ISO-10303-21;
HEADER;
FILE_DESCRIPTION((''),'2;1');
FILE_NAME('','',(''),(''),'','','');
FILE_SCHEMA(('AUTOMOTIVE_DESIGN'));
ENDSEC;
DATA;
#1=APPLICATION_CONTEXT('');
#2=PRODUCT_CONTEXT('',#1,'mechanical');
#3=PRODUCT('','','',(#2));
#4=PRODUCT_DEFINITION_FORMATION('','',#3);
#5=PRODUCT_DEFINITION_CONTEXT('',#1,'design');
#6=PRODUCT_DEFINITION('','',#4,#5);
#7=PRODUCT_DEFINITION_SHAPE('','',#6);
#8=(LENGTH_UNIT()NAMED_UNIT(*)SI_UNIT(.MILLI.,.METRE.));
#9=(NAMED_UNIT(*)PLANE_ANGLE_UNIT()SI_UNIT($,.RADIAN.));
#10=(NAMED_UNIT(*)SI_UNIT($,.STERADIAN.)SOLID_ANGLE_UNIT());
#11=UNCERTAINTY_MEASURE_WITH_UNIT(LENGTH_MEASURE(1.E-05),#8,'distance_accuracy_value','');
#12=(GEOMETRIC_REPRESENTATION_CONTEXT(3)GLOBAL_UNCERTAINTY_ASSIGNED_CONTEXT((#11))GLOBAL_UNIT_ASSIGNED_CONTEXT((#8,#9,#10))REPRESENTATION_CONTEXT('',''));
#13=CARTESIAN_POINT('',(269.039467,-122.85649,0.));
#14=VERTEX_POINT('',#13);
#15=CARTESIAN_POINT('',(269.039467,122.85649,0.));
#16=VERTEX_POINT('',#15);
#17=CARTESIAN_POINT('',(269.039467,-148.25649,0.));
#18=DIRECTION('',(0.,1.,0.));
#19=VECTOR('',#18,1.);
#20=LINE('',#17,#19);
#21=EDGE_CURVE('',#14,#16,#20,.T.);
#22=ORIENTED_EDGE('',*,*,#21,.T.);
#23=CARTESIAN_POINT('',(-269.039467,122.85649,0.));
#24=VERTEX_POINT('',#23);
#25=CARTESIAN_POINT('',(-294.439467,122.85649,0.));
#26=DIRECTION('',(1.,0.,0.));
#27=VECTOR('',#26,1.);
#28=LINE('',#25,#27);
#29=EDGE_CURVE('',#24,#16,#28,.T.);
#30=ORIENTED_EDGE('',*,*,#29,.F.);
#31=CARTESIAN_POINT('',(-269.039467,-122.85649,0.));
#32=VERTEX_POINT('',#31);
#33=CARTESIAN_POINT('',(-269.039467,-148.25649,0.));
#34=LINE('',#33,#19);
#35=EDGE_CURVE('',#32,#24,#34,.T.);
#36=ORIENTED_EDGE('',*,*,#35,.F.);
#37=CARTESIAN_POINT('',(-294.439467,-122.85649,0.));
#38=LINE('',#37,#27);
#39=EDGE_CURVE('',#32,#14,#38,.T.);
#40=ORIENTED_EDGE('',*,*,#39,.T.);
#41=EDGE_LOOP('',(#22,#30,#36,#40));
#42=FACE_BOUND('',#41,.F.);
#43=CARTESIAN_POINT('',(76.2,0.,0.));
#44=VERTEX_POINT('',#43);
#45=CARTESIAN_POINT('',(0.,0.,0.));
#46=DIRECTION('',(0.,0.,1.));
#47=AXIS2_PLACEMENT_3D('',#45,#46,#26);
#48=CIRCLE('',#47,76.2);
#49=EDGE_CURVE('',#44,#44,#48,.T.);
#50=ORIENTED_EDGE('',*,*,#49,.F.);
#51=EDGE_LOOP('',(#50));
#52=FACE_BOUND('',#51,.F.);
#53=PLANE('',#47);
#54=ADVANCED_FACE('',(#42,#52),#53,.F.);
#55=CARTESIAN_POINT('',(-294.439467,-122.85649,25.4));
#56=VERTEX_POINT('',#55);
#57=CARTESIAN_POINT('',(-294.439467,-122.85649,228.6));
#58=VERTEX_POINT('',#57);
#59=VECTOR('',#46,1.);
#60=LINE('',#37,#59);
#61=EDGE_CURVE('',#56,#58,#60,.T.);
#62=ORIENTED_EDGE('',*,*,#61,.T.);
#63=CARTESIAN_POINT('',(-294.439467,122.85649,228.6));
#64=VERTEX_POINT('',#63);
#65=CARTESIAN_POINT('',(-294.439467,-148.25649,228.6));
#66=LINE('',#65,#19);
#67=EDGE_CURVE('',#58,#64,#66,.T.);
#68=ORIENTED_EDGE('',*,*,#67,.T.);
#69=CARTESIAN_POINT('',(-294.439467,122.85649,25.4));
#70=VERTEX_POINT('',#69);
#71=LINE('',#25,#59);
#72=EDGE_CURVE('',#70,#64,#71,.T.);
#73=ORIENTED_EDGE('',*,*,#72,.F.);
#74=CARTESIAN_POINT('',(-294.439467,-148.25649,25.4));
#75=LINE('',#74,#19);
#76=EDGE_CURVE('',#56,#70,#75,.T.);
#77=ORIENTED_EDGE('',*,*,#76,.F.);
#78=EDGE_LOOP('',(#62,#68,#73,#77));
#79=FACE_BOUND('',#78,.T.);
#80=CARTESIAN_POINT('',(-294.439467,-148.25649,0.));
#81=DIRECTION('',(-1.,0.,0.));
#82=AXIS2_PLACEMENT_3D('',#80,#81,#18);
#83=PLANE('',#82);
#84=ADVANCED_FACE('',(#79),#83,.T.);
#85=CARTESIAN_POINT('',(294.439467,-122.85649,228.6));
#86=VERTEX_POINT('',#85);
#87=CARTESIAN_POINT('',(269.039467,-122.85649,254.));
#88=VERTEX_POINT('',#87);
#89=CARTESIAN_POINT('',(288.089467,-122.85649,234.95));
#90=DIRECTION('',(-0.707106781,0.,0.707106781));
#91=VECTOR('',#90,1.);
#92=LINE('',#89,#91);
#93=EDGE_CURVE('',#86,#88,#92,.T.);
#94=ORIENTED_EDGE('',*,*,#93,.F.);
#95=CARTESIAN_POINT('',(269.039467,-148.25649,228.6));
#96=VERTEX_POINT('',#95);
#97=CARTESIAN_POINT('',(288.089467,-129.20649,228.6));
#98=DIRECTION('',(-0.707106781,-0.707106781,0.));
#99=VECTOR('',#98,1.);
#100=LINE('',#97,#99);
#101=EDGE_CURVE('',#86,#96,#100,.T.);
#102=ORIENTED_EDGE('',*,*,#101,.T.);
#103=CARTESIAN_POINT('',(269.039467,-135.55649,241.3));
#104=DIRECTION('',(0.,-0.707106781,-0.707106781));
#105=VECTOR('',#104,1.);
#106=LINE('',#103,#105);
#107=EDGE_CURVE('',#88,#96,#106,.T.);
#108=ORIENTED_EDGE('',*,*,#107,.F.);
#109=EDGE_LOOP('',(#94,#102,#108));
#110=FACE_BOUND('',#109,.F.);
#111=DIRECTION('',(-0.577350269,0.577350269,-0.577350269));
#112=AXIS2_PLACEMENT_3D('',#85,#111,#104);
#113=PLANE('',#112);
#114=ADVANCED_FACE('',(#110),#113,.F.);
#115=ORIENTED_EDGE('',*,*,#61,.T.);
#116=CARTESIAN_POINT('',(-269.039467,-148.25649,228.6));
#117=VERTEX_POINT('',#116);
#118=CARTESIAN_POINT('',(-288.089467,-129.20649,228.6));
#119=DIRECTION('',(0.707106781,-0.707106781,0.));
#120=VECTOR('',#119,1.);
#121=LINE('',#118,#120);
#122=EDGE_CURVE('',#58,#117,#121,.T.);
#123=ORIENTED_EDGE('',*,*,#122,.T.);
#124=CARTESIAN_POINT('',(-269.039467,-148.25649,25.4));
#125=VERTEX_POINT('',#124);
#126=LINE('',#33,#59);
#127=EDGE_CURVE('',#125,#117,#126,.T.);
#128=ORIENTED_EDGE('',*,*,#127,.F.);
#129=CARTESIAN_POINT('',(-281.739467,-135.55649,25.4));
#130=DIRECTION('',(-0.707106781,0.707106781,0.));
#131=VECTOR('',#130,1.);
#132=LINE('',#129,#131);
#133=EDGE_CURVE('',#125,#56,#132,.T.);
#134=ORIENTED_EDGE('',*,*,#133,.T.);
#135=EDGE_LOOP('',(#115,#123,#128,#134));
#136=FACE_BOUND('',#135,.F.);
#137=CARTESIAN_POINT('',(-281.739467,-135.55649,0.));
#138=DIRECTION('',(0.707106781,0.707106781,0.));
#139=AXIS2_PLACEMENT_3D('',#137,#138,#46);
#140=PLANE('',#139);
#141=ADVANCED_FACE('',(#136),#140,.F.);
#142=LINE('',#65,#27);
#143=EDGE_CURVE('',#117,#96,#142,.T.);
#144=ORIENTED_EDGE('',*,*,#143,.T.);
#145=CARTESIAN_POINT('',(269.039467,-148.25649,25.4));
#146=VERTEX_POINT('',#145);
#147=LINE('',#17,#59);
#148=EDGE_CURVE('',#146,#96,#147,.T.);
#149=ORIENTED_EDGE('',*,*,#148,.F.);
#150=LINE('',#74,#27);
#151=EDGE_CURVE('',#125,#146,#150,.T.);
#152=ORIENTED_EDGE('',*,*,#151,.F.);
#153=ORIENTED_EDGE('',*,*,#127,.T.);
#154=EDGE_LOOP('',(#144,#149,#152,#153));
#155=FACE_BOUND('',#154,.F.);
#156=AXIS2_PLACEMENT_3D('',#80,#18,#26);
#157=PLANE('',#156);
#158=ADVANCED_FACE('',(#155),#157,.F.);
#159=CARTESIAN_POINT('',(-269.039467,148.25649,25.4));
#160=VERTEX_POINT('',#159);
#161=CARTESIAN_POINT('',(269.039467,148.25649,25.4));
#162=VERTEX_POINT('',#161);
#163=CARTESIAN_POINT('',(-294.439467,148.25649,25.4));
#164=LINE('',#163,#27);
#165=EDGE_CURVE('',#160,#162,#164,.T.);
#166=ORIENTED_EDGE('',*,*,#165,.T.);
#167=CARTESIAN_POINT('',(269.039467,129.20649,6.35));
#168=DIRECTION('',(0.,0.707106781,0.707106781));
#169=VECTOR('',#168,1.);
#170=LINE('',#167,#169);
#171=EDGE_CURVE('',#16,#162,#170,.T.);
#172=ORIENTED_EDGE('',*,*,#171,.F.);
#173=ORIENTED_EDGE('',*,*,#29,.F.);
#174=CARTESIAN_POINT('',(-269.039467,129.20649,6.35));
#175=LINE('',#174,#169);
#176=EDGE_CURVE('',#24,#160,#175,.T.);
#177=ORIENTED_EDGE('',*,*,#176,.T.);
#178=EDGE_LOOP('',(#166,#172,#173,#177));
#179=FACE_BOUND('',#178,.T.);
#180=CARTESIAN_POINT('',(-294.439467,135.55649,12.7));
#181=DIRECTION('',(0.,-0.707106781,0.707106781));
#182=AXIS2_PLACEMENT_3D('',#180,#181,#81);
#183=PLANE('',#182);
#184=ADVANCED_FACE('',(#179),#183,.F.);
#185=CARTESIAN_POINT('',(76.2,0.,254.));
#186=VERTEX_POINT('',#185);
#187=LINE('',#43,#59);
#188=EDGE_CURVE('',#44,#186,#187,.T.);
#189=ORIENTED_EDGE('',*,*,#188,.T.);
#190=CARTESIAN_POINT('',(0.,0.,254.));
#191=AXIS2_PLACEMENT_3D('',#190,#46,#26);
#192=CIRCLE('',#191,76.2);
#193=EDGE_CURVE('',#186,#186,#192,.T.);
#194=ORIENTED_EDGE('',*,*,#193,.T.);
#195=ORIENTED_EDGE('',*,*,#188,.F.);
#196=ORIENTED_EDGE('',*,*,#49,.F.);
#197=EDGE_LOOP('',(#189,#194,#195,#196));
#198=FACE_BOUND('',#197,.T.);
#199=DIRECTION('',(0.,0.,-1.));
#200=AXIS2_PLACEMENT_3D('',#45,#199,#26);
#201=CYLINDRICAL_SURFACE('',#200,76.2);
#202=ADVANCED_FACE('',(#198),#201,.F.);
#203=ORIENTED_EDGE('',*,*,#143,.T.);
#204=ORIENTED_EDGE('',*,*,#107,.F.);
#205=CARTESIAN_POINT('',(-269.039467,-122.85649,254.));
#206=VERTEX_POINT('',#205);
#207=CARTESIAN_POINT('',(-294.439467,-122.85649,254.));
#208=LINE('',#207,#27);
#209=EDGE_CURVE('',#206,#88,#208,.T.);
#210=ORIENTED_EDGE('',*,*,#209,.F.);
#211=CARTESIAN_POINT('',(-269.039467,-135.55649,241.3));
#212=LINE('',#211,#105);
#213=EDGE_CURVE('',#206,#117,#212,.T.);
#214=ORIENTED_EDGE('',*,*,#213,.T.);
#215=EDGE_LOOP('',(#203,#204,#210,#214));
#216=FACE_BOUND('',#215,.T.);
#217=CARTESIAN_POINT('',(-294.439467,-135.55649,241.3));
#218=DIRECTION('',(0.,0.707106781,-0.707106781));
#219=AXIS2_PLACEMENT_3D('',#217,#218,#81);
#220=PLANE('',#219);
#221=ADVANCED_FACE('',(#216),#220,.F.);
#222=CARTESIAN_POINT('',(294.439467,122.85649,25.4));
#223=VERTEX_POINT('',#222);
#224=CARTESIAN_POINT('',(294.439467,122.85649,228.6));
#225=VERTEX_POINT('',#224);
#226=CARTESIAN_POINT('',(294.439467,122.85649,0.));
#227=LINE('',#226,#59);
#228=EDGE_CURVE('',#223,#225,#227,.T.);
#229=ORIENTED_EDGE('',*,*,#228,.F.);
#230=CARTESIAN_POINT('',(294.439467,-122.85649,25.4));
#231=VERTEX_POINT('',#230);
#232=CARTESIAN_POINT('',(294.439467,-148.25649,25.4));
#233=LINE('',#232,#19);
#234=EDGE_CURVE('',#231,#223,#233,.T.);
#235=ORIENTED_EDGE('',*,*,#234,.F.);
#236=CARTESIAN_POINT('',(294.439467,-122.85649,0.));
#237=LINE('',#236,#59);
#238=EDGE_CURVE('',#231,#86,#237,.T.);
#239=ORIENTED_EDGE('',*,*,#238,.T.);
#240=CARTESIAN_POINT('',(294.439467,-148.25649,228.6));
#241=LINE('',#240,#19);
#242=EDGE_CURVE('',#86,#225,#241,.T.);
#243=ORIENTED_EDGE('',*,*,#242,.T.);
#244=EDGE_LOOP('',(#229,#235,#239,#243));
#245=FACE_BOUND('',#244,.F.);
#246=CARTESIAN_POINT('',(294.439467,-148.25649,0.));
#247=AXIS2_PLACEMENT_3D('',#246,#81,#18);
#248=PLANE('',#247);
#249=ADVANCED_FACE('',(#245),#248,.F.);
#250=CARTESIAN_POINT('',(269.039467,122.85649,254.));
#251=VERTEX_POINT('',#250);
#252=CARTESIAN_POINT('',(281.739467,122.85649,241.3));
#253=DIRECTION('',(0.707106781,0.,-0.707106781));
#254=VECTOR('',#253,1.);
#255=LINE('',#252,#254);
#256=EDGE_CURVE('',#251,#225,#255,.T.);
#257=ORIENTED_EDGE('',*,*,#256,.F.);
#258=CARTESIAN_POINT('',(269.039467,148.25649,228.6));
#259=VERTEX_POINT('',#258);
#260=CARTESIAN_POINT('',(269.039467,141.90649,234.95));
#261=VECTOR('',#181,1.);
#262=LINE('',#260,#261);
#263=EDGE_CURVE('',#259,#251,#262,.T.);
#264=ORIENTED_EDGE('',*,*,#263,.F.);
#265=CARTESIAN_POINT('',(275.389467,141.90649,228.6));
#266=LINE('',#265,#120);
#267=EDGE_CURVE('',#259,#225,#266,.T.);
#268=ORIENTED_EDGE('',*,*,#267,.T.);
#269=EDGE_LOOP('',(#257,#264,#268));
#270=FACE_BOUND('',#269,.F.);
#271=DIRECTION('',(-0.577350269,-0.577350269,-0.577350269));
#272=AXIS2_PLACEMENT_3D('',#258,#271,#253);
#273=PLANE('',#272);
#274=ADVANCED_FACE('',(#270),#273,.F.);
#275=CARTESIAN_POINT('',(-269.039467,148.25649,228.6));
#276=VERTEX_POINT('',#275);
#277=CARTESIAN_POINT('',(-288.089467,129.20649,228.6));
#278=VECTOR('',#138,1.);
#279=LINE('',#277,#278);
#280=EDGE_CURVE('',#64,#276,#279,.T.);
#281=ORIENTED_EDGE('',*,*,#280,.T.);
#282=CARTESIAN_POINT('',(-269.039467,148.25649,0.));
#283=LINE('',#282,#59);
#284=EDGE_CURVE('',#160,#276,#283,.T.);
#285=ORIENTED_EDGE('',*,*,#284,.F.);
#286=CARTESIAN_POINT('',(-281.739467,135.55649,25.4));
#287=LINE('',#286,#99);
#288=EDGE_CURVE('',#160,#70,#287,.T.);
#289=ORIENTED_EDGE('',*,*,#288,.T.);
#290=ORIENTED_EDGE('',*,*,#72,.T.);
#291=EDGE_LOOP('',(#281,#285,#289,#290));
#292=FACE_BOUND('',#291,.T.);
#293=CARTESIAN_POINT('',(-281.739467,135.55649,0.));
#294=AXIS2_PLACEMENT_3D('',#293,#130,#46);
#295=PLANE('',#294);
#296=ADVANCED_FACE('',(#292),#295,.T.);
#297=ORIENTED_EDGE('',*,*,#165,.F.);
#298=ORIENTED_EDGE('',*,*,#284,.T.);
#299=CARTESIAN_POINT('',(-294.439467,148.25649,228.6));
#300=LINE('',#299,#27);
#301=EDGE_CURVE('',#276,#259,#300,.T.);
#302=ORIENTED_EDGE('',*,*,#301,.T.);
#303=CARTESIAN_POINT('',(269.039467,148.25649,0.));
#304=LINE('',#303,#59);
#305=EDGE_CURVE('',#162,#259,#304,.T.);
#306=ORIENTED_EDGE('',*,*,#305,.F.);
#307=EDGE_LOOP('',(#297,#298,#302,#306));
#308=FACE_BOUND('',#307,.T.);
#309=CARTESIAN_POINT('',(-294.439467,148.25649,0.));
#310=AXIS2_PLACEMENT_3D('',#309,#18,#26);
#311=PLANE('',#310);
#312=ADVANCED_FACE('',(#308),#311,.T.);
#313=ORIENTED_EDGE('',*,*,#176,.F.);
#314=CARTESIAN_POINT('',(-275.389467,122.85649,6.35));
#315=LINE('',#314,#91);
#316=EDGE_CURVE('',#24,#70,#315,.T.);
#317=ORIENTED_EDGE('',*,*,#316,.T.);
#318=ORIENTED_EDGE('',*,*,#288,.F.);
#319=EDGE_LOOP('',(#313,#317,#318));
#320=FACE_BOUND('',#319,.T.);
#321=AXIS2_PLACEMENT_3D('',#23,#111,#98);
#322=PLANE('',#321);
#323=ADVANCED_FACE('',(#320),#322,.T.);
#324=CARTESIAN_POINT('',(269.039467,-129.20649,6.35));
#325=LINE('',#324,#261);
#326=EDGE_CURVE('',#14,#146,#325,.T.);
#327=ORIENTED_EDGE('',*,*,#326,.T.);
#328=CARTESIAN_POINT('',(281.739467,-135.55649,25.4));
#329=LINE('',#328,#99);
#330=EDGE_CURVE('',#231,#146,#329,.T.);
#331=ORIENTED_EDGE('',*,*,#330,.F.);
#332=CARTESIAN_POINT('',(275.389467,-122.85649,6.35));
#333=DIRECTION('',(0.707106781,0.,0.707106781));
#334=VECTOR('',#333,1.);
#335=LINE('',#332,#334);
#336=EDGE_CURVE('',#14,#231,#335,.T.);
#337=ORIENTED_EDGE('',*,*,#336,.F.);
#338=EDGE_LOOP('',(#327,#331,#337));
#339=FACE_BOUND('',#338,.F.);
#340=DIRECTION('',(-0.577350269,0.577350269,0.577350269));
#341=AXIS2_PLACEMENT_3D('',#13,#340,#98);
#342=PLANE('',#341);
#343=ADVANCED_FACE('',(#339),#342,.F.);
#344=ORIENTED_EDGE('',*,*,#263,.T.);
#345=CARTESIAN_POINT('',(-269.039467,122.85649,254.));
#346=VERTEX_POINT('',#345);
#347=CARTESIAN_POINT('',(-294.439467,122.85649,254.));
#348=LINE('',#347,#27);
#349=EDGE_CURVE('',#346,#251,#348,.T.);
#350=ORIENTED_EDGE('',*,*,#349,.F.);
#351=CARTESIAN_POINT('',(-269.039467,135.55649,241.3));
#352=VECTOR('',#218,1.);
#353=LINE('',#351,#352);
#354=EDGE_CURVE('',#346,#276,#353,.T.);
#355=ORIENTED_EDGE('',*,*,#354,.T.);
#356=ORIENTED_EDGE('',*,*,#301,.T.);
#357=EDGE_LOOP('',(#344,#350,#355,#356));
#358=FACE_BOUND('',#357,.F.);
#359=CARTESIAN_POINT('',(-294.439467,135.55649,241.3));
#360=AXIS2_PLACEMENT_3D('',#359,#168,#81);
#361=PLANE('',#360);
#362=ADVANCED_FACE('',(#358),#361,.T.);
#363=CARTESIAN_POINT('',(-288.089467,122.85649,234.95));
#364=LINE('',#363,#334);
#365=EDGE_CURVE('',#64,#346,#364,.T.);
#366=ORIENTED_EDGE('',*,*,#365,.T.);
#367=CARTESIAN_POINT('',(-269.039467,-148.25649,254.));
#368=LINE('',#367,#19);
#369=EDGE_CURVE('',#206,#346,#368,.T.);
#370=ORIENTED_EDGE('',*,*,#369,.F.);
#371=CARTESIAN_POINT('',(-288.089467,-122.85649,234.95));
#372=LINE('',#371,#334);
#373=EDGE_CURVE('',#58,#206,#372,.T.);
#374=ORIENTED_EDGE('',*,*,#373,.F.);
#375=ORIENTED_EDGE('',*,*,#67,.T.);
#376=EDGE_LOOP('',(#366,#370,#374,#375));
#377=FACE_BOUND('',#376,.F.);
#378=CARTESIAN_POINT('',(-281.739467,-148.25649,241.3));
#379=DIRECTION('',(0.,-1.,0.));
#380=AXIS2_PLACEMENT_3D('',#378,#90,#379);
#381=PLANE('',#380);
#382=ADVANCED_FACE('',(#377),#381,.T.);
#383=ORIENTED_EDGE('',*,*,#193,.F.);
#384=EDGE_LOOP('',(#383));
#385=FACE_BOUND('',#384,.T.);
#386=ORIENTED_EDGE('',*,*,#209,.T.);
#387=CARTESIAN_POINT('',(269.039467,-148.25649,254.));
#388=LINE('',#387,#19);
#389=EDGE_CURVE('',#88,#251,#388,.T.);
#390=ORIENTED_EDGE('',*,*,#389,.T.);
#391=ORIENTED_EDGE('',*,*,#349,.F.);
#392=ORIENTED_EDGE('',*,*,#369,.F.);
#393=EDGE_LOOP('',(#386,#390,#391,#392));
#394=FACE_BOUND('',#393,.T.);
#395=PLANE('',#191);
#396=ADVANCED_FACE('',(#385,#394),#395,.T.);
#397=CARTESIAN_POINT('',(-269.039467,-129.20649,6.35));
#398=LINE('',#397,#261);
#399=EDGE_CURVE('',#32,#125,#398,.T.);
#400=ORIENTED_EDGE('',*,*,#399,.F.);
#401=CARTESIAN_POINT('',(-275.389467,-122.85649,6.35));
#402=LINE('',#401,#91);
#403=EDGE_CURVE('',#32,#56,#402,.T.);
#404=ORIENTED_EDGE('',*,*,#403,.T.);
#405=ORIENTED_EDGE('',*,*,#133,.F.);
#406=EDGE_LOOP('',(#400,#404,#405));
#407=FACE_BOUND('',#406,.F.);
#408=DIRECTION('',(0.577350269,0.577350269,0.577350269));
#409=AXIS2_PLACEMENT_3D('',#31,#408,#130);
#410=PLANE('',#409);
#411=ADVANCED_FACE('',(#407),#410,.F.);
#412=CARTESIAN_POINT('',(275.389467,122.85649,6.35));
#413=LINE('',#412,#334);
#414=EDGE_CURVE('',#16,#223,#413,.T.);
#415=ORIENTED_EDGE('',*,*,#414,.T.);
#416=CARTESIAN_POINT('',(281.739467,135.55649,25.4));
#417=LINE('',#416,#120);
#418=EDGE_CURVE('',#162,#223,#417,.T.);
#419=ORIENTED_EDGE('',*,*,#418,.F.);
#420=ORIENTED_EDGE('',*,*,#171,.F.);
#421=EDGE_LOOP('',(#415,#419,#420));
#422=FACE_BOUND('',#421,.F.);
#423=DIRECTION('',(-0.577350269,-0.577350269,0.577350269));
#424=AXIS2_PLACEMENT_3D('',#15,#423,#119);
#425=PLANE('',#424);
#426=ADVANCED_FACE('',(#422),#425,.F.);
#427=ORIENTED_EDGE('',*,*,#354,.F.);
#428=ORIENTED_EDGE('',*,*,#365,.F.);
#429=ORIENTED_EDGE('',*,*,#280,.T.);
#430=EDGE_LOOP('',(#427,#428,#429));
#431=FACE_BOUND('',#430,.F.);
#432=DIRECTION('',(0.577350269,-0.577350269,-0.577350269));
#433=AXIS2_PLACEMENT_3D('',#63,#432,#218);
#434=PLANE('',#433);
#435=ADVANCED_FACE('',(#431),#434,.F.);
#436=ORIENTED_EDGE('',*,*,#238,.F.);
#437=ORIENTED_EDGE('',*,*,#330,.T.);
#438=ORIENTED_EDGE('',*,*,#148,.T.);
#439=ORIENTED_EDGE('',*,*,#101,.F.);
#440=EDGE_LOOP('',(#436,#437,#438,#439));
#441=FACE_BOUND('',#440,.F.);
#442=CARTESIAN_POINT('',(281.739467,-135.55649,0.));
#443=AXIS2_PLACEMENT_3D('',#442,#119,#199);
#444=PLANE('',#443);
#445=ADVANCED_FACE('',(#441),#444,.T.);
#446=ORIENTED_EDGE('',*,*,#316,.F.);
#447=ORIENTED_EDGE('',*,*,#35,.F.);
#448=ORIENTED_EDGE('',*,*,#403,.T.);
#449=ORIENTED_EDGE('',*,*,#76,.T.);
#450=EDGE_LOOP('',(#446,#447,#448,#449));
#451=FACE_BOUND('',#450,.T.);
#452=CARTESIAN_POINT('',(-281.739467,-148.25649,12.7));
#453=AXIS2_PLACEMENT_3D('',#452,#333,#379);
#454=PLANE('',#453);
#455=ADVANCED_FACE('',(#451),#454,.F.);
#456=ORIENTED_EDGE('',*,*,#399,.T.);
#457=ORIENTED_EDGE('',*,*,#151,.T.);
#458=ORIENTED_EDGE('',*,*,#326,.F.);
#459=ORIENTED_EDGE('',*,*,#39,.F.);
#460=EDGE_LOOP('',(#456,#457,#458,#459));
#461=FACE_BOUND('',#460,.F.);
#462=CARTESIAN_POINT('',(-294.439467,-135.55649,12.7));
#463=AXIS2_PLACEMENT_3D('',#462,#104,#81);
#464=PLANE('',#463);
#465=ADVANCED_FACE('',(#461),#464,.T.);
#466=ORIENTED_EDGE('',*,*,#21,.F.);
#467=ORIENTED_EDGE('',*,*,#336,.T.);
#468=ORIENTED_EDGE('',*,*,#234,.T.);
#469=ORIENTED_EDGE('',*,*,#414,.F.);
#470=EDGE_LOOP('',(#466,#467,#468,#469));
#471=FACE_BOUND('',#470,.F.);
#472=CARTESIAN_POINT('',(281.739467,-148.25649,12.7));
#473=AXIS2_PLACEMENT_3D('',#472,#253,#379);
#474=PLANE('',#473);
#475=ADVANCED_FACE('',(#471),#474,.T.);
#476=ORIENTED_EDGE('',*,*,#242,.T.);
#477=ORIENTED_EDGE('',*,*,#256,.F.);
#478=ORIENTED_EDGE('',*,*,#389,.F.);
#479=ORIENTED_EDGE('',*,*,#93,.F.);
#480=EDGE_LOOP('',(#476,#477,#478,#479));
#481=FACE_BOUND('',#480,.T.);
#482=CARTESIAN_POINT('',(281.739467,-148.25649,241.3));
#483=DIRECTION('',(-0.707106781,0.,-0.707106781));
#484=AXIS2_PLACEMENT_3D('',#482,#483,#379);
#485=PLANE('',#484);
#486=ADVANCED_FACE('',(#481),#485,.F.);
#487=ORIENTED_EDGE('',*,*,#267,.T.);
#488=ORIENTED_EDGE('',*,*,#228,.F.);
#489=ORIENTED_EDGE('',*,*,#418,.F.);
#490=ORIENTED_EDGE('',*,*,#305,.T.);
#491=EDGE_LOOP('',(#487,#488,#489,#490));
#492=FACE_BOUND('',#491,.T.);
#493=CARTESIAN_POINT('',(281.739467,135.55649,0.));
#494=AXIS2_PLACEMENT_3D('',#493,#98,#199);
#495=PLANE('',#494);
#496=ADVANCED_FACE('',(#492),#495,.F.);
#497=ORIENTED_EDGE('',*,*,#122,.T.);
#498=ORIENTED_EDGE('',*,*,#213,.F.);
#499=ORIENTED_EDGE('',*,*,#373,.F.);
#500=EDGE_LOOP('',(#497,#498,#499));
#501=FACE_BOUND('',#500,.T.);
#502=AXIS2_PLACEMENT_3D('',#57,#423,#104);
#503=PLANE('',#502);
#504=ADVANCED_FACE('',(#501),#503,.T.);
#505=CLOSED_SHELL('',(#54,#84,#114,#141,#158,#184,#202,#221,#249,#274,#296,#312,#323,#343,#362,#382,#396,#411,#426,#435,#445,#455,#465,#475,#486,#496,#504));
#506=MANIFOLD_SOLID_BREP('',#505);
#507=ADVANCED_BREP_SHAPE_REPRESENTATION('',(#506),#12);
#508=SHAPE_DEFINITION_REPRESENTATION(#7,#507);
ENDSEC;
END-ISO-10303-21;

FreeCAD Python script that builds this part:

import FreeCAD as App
import Part
import Sketcher
Q = App.Units.Quantity


def edges_at(feature, points):
    """Names of the edges that pass closest to the given points."""
    edges = feature.Shape.Edges
    near = lambda p: min(range(len(edges)), key=lambda i: edges[i].distToShape(Part.Vertex(*p))[0])
    return sorted({f"Edge{near(p) + 1}" for p in points})

doc = App.newDocument("Part")
body = doc.addObject("PartDesign::Body", "Body")

# Sketch on XY plane
sketch1 = doc.addObject("Sketcher::SketchObject", "Sketch")
body.addObject(sketch1)
sketch1.AttachmentSupport = (doc.XY_Plane, [""])
sketch1.MapMode = "FlatFace"
sketch1.addGeometry(Part.LineSegment(App.Vector(-294, 148, 0), App.Vector(-294, -148, 0)), False)
sketch1.addGeometry(Part.LineSegment(App.Vector(-294, -148, 0), App.Vector(294, -148, 0)), False)
sketch1.addGeometry(Part.LineSegment(App.Vector(294, -148, 0), App.Vector(294, 148, 0)), False)
sketch1.addGeometry(Part.LineSegment(App.Vector(294, 148, 0), App.Vector(-294, 148, 0)), False)
sketch1.addGeometry(Part.Circle(App.Vector(0, 0, 0), App.Vector(0, 0, 1), 76), False)
sketch1.addConstraint(Sketcher.Constraint("Coincident", 0, 2, 1, 1))
sketch1.addConstraint(Sketcher.Constraint("Coincident", 1, 2, 2, 1))
sketch1.addConstraint(Sketcher.Constraint("Coincident", 2, 2, 3, 1))
sketch1.addConstraint(Sketcher.Constraint("Coincident", 3, 2, 0, 1))
sketch1.addConstraint(Sketcher.Constraint("Vertical", 0))
sketch1.addConstraint(Sketcher.Constraint("Horizontal", 1))
sketch1.addConstraint(Sketcher.Constraint("Vertical", 2))
sketch1.addConstraint(Sketcher.Constraint("Horizontal", 3))
sketch1.addConstraint(Sketcher.Constraint("Coincident", 4, 3, -1, 1))
sketch1.addConstraint(Sketcher.Constraint("Symmetric", 0, 2, 2, 2, -1, 1))
sketch1.addConstraint(Sketcher.Constraint("Diameter", 4, Q("6 in")))
sketch1.addConstraint(Sketcher.Constraint("DistanceY", 0, 2, 0, 1, 296.51298))
sketch1.addConstraint(Sketcher.Constraint("DistanceX", 1, 1, 1, 2, 588.878934))
pad1 = doc.addObject("PartDesign::Pad", "Pad")
body.addObject(pad1)
pad1.Profile = sketch1
pad1.Length = Q("10 in")
doc.recompute()

chamfer = doc.addObject("PartDesign::Chamfer", "Chamfer")
body.addObject(chamfer)
chamfer.Base = (pad1, edges_at(pad1, [
    (0, -148.256, 254),
    (294.439, 0, 254),
    (0, 148.256, 254),
    (-294.439, 0, 254),
    (294.439, 148.256, 127),
    (294.439, -148.256, 127),
    (-294.439, -148.256, 127),
    (-294.439, 148.256, 127),
    (0, 148.256, 0),
    (294.439, 0, 0),
    (0, -148.256, 0),
    (-294.439, 0, 0),
]))
chamfer.Size = Q("1 in")

doc.recompute()
